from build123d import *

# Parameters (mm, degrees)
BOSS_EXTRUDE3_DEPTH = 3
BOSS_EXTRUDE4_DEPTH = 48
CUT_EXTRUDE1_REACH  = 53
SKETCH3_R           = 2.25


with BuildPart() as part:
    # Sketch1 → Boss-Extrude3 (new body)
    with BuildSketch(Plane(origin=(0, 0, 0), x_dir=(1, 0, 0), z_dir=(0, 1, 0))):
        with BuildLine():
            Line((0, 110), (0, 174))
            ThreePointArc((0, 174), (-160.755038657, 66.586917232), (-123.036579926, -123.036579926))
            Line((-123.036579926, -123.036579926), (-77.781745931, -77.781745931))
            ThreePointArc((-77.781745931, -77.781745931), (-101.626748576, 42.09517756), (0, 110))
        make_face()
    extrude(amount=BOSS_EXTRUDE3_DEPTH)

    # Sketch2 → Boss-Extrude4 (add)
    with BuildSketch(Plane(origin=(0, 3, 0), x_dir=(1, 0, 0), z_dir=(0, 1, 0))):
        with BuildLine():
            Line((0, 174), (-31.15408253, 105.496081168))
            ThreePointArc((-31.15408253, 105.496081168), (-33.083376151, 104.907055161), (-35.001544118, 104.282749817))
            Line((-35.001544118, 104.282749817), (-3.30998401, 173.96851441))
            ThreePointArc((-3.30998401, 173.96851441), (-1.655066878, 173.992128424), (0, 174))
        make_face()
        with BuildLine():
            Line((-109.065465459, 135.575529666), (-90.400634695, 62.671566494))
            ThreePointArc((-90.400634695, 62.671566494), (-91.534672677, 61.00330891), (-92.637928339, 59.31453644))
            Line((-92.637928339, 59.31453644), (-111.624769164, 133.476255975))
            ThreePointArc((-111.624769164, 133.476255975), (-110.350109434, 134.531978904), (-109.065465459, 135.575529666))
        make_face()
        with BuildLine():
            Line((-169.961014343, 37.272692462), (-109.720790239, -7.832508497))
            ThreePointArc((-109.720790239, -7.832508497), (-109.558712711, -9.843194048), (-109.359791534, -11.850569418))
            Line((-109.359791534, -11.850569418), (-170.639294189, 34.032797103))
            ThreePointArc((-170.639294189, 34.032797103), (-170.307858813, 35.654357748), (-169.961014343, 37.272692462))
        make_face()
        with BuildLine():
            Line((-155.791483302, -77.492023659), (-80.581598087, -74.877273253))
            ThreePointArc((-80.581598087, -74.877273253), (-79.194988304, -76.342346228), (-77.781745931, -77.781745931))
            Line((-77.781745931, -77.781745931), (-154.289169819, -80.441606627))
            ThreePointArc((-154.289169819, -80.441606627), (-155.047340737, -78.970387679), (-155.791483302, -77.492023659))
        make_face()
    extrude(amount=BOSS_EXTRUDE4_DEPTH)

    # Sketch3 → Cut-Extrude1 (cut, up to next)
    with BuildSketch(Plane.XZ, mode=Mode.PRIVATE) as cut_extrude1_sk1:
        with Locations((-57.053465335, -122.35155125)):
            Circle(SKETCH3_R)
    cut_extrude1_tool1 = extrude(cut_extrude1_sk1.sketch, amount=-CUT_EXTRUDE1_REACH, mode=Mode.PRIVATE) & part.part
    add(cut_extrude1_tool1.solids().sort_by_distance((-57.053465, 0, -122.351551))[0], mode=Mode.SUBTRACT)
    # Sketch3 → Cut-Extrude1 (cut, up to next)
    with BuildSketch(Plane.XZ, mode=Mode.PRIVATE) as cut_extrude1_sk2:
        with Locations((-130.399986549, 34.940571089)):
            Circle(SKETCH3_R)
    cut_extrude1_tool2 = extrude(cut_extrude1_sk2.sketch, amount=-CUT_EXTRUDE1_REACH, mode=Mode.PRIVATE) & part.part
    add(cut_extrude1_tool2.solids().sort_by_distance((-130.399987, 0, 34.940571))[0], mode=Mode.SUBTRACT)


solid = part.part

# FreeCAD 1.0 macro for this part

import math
import FreeCAD as App
import Part
import Sketcher

V = App.Vector
Q = App.Units.Quantity

doc = App.newDocument("Part")
body = doc.addObject("PartDesign::Body", "Body")

sketch1 = body.newObject("Sketcher::SketchObject", "Sketch")
sketch1.AttachmentSupport = (doc.getObject("XZ_Plane"), [""])
sketch1.MapMode = "FlatFace"
sketch1.addGeometry(Part.LineSegment(V(0, -110, 0), V(0, -174, 0)), False)
sketch1.addGeometry(Part.ArcOfCircle(Part.Circle(V(0, 0, 0), V(0, 0, 1), 174), math.radians(135), math.radians(270)), False)
sketch1.addGeometry(Part.LineSegment(V(-123, 123, 0), V(-78, 78, 0)), False)
sketch1.addGeometry(Part.ArcOfCircle(Part.Circle(V(0, 0, 0), V(0, 0, 1), 110), math.radians(135), math.radians(270)), False)
sketch1.addConstraint(Sketcher.Constraint("Coincident", 0, 2, 1, 2))
sketch1.addConstraint(Sketcher.Constraint("Coincident", 1, 1, 2, 1))
sketch1.addConstraint(Sketcher.Constraint("Coincident", 2, 2, 3, 1))
sketch1.addConstraint(Sketcher.Constraint("Coincident", 3, 2, 0, 1))
sketch1.addConstraint(Sketcher.Constraint("Vertical", 0))
sketch1.addConstraint(Sketcher.Constraint("Coincident", 1, 3, -1, 1))
sketch1.addConstraint(Sketcher.Constraint("Coincident", 3, 3, -1, 1))
sketch1.addConstraint(Sketcher.Constraint("PointOnObject", 0, 2, -2))
sketch1.addConstraint(Sketcher.Constraint("Radius", 1, Q("174 mm")))
sketch1.addConstraint(Sketcher.Constraint("Radius", 3, Q("110 mm")))
sketch1.addConstraint(Sketcher.Constraint("Angle", 2, Q("-45 deg")))
sketch1.addConstraint(Sketcher.Constraint("DistanceX", 1, 1, -1, 1, Q("123.03658 mm")))
pad1 = body.newObject("PartDesign::Pad", "Pad")
pad1.Profile = sketch1
pad1.Length = 3
pad1.Reversed = True

sketch2 = body.newObject("Sketcher::SketchObject", "Sketch001")
sketch2.AttachmentSupport = (doc.getObject("XZ_Plane"), [""])
sketch2.MapMode = "FlatFace"
sketch2.AttachmentOffset = App.Placement(V(0, 0, -3), App.Rotation())
sketch2.addGeometry(Part.LineSegment(V(-31.2, -105.5, 0), V(0, -174, 0)), False)
sketch2.addGeometry(Part.ArcOfCircle(Part.Circle(V(0, 0, 0), V(0, 0, 1), 174), math.radians(-91.09), math.radians(-90)), False)
sketch2.addGeometry(Part.LineSegment(V(-3.3, -174, 0), V(-35, -104.3, 0)), False)
sketch2.addGeometry(Part.ArcOfCircle(Part.Circle(V(0, 0, 0), V(0, 0, 1), 110), math.radians(-108.55), math.radians(-106.45)), False)
sketch2.addGeometry(Part.LineSegment(V(-90.4, -62.7, 0), V(-109.1, -135.6, 0)), False)
sketch2.addGeometry(Part.ArcOfCircle(Part.Circle(V(0, 0, 0), V(0, 0, 1), 174), math.radians(-129.91), math.radians(-128.82)), False)
sketch2.addGeometry(Part.LineSegment(V(-111.6, -133.5, 0), V(-92.6, -59.3, 0)), False)
sketch2.addGeometry(Part.ArcOfCircle(Part.Circle(V(0, 0, 0), V(0, 0, 1), 110), math.radians(-147.37), math.radians(-145.27)), False)
sketch2.addGeometry(Part.LineSegment(V(-109.7, 7.8, 0), V(-170, -37.3, 0)), False)
sketch2.addGeometry(Part.ArcOfCircle(Part.Circle(V(0, 0, 0), V(0, 0, 1), 174), math.radians(-168.72), math.radians(-167.63)), False)
sketch2.addGeometry(Part.LineSegment(V(-170.6, -34, 0), V(-109.4, 11.9, 0)), False)
sketch2.addGeometry(Part.ArcOfCircle(Part.Circle(V(0, 0, 0), V(0, 0, 1), 110), math.radians(173.82), math.radians(175.92)), False)
sketch2.addGeometry(Part.LineSegment(V(-80.6, 74.9, 0), V(-155.8, 77.5, 0)), False)
sketch2.addGeometry(Part.ArcOfCircle(Part.Circle(V(0, 0, 0), V(0, 0, 1), 174), math.radians(152.46), math.radians(153.55)), False)
sketch2.addGeometry(Part.LineSegment(V(-154.3, 80.4, 0), V(-77.8, 77.8, 0)), False)
sketch2.addGeometry(Part.ArcOfCircle(Part.Circle(V(0, 0, 0), V(0, 0, 1), 110), math.radians(135), math.radians(137.1)), False)
sketch2.addConstraint(Sketcher.Constraint("Coincident", 0, 2, 1, 2))
sketch2.addConstraint(Sketcher.Constraint("Coincident", 1, 1, 2, 1))
sketch2.addConstraint(Sketcher.Constraint("Coincident", 2, 2, 3, 1))
sketch2.addConstraint(Sketcher.Constraint("Coincident", 3, 2, 0, 1))
sketch2.addConstraint(Sketcher.Constraint("Coincident", 4, 2, 5, 2))
sketch2.addConstraint(Sketcher.Constraint("Coincident", 5, 1, 6, 1))
sketch2.addConstraint(Sketcher.Constraint("Coincident", 6, 2, 7, 1))
sketch2.addConstraint(Sketcher.Constraint("Coincident", 7, 2, 4, 1))
sketch2.addConstraint(Sketcher.Constraint("Coincident", 8, 2, 9, 2))
sketch2.addConstraint(Sketcher.Constraint("Coincident", 9, 1, 10, 1))
sketch2.addConstraint(Sketcher.Constraint("Coincident", 10, 2, 11, 1))
sketch2.addConstraint(Sketcher.Constraint("Coincident", 11, 2, 8, 1))
sketch2.addConstraint(Sketcher.Constraint("Coincident", 12, 2, 13, 2))
sketch2.addConstraint(Sketcher.Constraint("Coincident", 13, 1, 14, 1))
sketch2.addConstraint(Sketcher.Constraint("Coincident", 14, 2, 15, 1))
sketch2.addConstraint(Sketcher.Constraint("Coincident", 15, 2, 12, 1))
sketch2.addConstraint(Sketcher.Constraint("Coincident", 3, 3, -1, 1))
sketch2.addConstraint(Sketcher.Constraint("Coincident", 5, 3, -1, 1))
sketch2.addConstraint(Sketcher.Constraint("Coincident", 7, 3, -1, 1))
sketch2.addConstraint(Sketcher.Constraint("Coincident", 9, 3, -1, 1))
sketch2.addConstraint(Sketcher.Constraint("Coincident", 11, 3, -1, 1))
sketch2.addConstraint(Sketcher.Constraint("Coincident", 15, 3, -1, 1))
sketch2.addConstraint(Sketcher.Constraint("Coincident", 5, 3, 1, 3))
sketch2.addConstraint(Sketcher.Constraint("Equal", 3, 7))
sketch2.addConstraint(Sketcher.Constraint("Equal", 7, 11))
sketch2.addConstraint(Sketcher.Constraint("Equal", 11, 15))
sketch2.addConstraint(Sketcher.Constraint("PointOnObject", 0, 2, -2))
sketch2.addConstraint(Sketcher.Constraint("Parallel", 0, 2))
sketch2.addConstraint(Sketcher.Constraint("Parallel", 4, 6))
sketch2.addConstraint(Sketcher.Constraint("Parallel", 8, 10))
sketch2.addConstraint(Sketcher.Constraint("Parallel", 12, 14))
sketch2.addConstraint(Sketcher.Constraint("Equal", 0, 4))
sketch2.addConstraint(Sketcher.Constraint("Equal", 2, 6))
sketch2.addConstraint(Sketcher.Constraint("Equal", 4, 8))
sketch2.addConstraint(Sketcher.Constraint("Equal", 6, 10))
sketch2.addConstraint(Sketcher.Constraint("Equal", 8, 12))
sketch2.addConstraint(Sketcher.Constraint("Equal", 10, 14))
sketch2.addConstraint(Sketcher.Constraint("Radius", 3, Q("109.999999 mm")))
sketch2.addConstraint(Sketcher.Constraint("Radius", 9, Q("174.000002 mm")))
sketch2.addConstraint(Sketcher.Constraint("DistanceY", 0, 2, -1, 1, Q("174 mm")))
sketch2.addConstraint(Sketcher.Constraint("Radius", 5, Q("174.000006 mm")))
sketch2.addConstraint(Sketcher.Constraint("Radius", 13, Q("174.000025 mm")))
sketch2.addConstraint(Sketcher.Constraint("DistanceX", 11, 2, 10, 2, Q("0.360999 mm")))
sketch2.addConstraint(Sketcher.Constraint("DistanceX", 15, 2, -1, 1, Q("80.581598 mm")))
sketch2.addConstraint(Sketcher.Constraint("DistanceX", 3, 2, 1, 1, Q("27.844099 mm")))
sketch2.addConstraint(Sketcher.Constraint("DistanceY", 8, 2, 11, 2, Q("45.105201 mm")))
sketch2.addConstraint(Sketcher.Constraint("DistanceY", 11, 2, 13, 1, Q("72.609098 mm")))
sketch2.addConstraint(Sketcher.Constraint("DistanceY", 4, 2, -1, 1, Q("135.57553 mm")))
sketch2.addConstraint(Sketcher.Constraint("DistanceY", 0, 2, 13, 3, Q("173.999988 mm")))
pad2 = body.newObject("PartDesign::Pad", "Pad001")
pad2.Profile = sketch2
pad2.Length = 48
pad2.Reversed = True

sketch3 = body.newObject("Sketcher::SketchObject", "Sketch002")
sketch3.AttachmentSupport = (doc.getObject("XZ_Plane"), [""])
sketch3.MapMode = "FlatFace"
sketch3.addGeometry(Part.Circle(V(-57.1, -122.4, 0), V(0, 0, 1), 2.2), False)
sketch3.addConstraint(Sketcher.Constraint("Diameter", 0, Q("4.5 mm")))
sketch3.addConstraint(Sketcher.Constraint("DistanceY", 0, 3, -1, 1, Q("122.351551 mm")))
sketch3.addConstraint(Sketcher.Constraint("DistanceX", 0, 3, -1, 1, Q("57.053465 mm")))
pocket1 = body.newObject("PartDesign::Pocket", "Pocket")
pocket1.Profile = sketch3
pocket1.Type = "UpToFirst"

sketch4 = body.newObject("Sketcher::SketchObject", "Sketch003")
sketch4.AttachmentSupport = (doc.getObject("XZ_Plane"), [""])
sketch4.MapMode = "FlatFace"
sketch4.addGeometry(Part.Circle(V(-130.4, 34.9, 0), V(0, 0, 1), 2.2), False)
sketch4.addConstraint(Sketcher.Constraint("Diameter", 0, Q("4.5 mm")))
sketch4.addConstraint(Sketcher.Constraint("DistanceY", -1, 1, 0, 3, Q("34.940571 mm")))
sketch4.addConstraint(Sketcher.Constraint("DistanceX", 0, 3, -1, 1, Q("130.399987 mm")))
pocket2 = body.newObject("PartDesign::Pocket", "Pocket001")
pocket2.Profile = sketch4
pocket2.Type = "UpToFirst"

doc.recompute()
